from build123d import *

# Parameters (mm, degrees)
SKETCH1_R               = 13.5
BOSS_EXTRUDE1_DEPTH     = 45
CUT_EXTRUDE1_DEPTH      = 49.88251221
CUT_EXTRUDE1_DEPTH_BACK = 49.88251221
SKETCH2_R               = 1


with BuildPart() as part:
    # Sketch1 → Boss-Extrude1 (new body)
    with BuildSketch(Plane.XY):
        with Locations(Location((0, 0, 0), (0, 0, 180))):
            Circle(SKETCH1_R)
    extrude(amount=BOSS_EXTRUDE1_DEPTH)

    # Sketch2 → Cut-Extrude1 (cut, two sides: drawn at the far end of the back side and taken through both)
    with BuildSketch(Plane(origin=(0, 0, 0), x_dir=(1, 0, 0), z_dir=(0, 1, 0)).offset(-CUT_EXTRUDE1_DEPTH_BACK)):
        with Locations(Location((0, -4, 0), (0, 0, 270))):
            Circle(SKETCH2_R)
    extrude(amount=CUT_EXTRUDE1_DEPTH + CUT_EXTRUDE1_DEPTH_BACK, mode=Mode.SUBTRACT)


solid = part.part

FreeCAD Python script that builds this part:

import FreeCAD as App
import Part
import Sketcher

doc = App.newDocument("Part")
body = doc.addObject("PartDesign::Body", "Body")

sketch1 = body.newObject("Sketcher::SketchObject", "Sketch")
sketch1.AttachmentSupport = (doc.getObject("XY_Plane"), [""])
sketch1.MapMode = "FlatFace"
sketch1.addGeometry(Part.Circle(App.Vector(0, 0, 0), App.Vector(0, 0, 1), 13.5), False)
sketch1.addConstraint([
    Sketcher.Constraint("Coincident", 0, 3, -1, 1),
    Sketcher.Constraint("Diameter", 0, 27.0),
])
pad1 = body.newObject("PartDesign::Pad", "Pad")
pad1.Profile = sketch1
pad1.Length = 45

sketch2 = body.newObject("Sketcher::SketchObject", "Sketch001")
sketch2.AttachmentSupport = (doc.getObject("XZ_Plane"), [""])
sketch2.MapMode = "FlatFace"
sketch2.addGeometry(Part.Circle(App.Vector(0, 4, 0), App.Vector(0, 0, 1), 1), False)
sketch2.addConstraint([
    Sketcher.Constraint("PointOnObject", 0, 3, -2),
    Sketcher.Constraint("Diameter", 0, 2.0),
    Sketcher.Constraint("DistanceY", -1, 1, 0, 3, 4.0),
])
pocket1 = body.newObject("PartDesign::Pocket", "Pocket")
pocket1.Profile = sketch2
pocket1.Type = "ThroughAll"
pocket1.Midplane = True

doc.recompute()
